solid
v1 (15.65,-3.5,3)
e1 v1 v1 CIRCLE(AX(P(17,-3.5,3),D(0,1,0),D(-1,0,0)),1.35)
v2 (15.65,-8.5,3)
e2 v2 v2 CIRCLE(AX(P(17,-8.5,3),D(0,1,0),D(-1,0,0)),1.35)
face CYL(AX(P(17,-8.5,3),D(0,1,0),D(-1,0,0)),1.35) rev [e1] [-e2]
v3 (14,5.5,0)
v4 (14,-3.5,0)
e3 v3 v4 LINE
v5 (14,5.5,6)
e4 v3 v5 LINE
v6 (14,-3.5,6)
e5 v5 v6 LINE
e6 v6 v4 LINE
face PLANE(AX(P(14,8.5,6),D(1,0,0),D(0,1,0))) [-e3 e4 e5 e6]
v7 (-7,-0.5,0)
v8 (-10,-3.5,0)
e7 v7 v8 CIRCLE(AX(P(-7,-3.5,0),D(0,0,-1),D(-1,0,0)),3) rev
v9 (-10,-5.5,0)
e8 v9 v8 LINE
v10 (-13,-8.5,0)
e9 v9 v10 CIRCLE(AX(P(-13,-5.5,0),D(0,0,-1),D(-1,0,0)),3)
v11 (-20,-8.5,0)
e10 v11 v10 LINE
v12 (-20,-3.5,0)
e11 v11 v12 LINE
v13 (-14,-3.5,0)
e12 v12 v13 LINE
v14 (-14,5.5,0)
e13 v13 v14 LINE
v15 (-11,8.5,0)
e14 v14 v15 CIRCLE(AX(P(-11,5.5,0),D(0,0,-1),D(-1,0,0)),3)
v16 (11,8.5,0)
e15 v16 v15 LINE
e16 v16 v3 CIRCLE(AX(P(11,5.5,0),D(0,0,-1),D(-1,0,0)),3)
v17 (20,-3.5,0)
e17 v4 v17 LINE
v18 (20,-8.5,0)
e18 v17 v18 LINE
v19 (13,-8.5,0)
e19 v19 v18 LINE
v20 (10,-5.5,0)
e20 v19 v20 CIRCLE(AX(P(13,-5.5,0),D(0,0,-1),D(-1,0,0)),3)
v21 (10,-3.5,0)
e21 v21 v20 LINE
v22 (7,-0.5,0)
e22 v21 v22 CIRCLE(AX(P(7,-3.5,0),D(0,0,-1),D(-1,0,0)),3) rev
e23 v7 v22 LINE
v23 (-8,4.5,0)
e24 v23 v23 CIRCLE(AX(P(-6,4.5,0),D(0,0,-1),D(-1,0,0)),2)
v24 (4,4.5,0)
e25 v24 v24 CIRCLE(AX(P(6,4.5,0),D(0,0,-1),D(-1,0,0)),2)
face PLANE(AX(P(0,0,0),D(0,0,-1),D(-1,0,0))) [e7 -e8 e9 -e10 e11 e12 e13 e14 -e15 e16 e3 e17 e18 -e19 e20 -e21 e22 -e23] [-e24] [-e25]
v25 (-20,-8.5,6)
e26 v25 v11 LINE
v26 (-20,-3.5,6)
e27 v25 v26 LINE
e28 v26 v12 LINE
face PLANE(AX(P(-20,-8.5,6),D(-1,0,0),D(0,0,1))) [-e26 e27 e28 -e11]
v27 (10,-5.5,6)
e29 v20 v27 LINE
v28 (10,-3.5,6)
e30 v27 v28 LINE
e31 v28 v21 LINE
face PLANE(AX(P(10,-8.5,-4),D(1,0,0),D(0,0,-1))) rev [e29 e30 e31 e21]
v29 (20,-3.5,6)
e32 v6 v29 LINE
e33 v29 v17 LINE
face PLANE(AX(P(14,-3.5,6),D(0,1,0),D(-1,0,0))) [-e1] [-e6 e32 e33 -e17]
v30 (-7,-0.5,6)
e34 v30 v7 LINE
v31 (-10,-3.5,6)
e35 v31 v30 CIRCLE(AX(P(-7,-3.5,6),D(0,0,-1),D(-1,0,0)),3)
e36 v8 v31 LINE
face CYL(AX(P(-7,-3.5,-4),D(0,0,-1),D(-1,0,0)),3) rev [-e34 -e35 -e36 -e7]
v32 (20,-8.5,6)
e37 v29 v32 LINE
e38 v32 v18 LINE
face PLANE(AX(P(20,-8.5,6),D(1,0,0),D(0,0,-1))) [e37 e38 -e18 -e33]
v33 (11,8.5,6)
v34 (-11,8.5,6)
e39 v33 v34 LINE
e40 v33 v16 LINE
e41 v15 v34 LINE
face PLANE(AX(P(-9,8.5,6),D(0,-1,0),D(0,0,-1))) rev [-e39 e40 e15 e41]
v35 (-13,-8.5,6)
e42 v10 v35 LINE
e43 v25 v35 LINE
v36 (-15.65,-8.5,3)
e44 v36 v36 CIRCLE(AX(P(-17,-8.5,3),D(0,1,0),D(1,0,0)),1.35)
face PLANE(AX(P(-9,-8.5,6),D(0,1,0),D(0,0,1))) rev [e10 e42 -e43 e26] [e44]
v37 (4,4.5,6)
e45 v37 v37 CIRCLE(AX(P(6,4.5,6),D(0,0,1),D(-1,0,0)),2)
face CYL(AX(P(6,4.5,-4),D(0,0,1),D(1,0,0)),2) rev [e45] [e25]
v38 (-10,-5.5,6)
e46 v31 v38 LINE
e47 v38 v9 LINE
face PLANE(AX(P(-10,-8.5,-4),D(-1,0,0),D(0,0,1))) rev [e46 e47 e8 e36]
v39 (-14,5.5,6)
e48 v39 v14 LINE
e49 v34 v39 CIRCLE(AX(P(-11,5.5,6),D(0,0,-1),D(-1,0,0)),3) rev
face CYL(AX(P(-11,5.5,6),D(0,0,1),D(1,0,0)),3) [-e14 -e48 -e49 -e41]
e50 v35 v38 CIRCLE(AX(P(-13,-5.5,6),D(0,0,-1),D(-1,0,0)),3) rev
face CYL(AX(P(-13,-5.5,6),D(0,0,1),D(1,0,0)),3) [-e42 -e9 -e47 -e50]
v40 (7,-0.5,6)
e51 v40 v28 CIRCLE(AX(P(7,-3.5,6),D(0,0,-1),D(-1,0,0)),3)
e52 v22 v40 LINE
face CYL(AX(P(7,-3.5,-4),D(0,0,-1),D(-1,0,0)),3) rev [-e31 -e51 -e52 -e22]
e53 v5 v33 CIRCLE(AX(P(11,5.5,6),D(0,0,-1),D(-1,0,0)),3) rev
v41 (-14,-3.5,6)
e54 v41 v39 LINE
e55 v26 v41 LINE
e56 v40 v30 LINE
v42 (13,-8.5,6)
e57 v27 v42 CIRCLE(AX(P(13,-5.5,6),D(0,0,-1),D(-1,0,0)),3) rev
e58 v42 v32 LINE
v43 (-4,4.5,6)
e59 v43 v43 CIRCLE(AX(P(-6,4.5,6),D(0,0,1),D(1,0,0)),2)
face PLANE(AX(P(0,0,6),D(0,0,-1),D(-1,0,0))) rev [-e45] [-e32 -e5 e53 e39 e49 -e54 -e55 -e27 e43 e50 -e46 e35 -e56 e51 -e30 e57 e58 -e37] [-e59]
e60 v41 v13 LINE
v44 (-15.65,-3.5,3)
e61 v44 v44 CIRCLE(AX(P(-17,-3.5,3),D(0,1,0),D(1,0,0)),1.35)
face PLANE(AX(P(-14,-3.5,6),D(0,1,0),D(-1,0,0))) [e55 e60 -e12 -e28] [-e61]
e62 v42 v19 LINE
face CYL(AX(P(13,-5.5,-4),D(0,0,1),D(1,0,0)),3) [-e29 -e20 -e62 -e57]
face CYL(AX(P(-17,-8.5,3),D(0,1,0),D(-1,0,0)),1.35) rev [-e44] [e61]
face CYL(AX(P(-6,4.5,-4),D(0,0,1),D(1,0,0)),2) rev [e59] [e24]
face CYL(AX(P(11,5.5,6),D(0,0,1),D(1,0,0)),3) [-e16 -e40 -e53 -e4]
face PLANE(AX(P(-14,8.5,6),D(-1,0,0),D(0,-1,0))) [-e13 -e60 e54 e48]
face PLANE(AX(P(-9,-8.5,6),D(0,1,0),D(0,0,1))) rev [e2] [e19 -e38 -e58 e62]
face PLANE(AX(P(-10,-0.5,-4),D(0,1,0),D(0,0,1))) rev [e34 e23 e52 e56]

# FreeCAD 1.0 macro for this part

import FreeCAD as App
import Part
import Sketcher


def edges_at(feature, points):
    """Names of the edges that pass closest to the given points."""
    edges = feature.Shape.Edges
    near = lambda p: min(range(len(edges)), key=lambda i: edges[i].distToShape(Part.Vertex(*p))[0])
    return sorted({f"Edge{near(p) + 1}" for p in points})

doc = App.newDocument("Part")
body = doc.addObject("PartDesign::Body", "Body")

# Sketch on XY plane
sketch1 = body.newObject("Sketcher::SketchObject", "Sketch")
sketch1.AttachmentSupport = (doc.getObject("XY_Plane"), [""])
sketch1.MapMode = "FlatFace"
sketch1.addGeometry([
    Part.LineSegment(App.Vector(-9, 8, 0), App.Vector(-9, -8, 0)),
    Part.LineSegment(App.Vector(-9, -8, 0), App.Vector(9, -8, 0)),
    Part.LineSegment(App.Vector(9, -8, 0), App.Vector(9, 8, 0)),
    Part.LineSegment(App.Vector(9, 8, 0), App.Vector(-9, 8, 0)),
], False)
sketch1.addConstraint([
    Sketcher.Constraint("Coincident", 0, 2, 1, 1),
    Sketcher.Constraint("Coincident", 1, 2, 2, 1),
    Sketcher.Constraint("Coincident", 2, 2, 3, 1),
    Sketcher.Constraint("Coincident", 3, 2, 0, 1),
    Sketcher.Constraint("Vertical", 0),
    Sketcher.Constraint("Horizontal", 1),
    Sketcher.Constraint("Vertical", 2),
    Sketcher.Constraint("Horizontal", 3),
    Sketcher.Constraint("Symmetric", 0, 2, 2, 2, -1, 1),
    Sketcher.Constraint("DistanceX", 1, 1, 1, 2, 18.0),
    Sketcher.Constraint("DistanceY", 0, 2, 0, 1, 17.0),
])
pad1 = body.newObject("PartDesign::Pad", "Pad")
pad1.Profile = sketch1
pad1.Length = 6

# Sketch on XY plane
sketch2 = body.newObject("Sketcher::SketchObject", "Sketch001")
sketch2.AttachmentSupport = (doc.getObject("XY_Plane"), [""])
sketch2.MapMode = "FlatFace"
sketch2.addGeometry([
    Part.LineSegment(App.Vector(9, 8, 0), App.Vector(14, 8, 0)),  # 0
    Part.LineSegment(App.Vector(14, 8, 0), App.Vector(14, -4, 0)),  # 1
    Part.LineSegment(App.Vector(14, -4, 0), App.Vector(20, -4, 0)),  # 2
    Part.LineSegment(App.Vector(20, -4, 0), App.Vector(20, -8, 0)),  # 3
    Part.LineSegment(App.Vector(20, -8, 0), App.Vector(9, -8, 0)),  # 4
    Part.LineSegment(App.Vector(9, -8, 0), App.Vector(9, 8, 0)),  # 5
    Part.LineSegment(App.Vector(-20, -8, 0), App.Vector(-20, -4, 0)),  # 6
    Part.LineSegment(App.Vector(-20, -4, 0), App.Vector(-14, -4, 0)),  # 7
    Part.LineSegment(App.Vector(-14, -4, 0), App.Vector(-14, 8, 0)),  # 8
    Part.LineSegment(App.Vector(-14, 8, 0), App.Vector(-9, 8, 0)),  # 9
    Part.LineSegment(App.Vector(-9, 8, 0), App.Vector(-9, -8, 0)),  # 10
    Part.LineSegment(App.Vector(-9, -8, 0), App.Vector(-20, -8, 0)),  # 11
], False)
sketch2.addConstraint([
    Sketcher.Constraint("Coincident", 0, 2, 1, 1),
    Sketcher.Constraint("Coincident", 1, 2, 2, 1),
    Sketcher.Constraint("Coincident", 2, 2, 3, 1),
    Sketcher.Constraint("Coincident", 3, 2, 4, 1),
    Sketcher.Constraint("Coincident", 4, 2, 5, 1),
    Sketcher.Constraint("Coincident", 5, 2, 0, 1),
    Sketcher.Constraint("Coincident", 6, 2, 7, 1),
    Sketcher.Constraint("Coincident", 7, 2, 8, 1),
    Sketcher.Constraint("Coincident", 8, 2, 9, 1),
    Sketcher.Constraint("Coincident", 9, 2, 10, 1),
    Sketcher.Constraint("Coincident", 10, 2, 11, 1),
    Sketcher.Constraint("Coincident", 11, 2, 6, 1),
    Sketcher.Constraint("Horizontal", 0),
    Sketcher.Constraint("Vertical", 1),
    Sketcher.Constraint("Horizontal", 2),
    Sketcher.Constraint("Vertical", 3),
    Sketcher.Constraint("Horizontal", 4),
    Sketcher.Constraint("Vertical", 5),
    Sketcher.Constraint("Vertical", 6),
    Sketcher.Constraint("Horizontal", 7),
    Sketcher.Constraint("Vertical", 8),
    Sketcher.Constraint("Horizontal", 9),
    Sketcher.Constraint("Vertical", 10),
    Sketcher.Constraint("Horizontal", 11),
    Sketcher.Constraint("Symmetric", 4, 2, 9, 2, -1, 1),
    Sketcher.Constraint("Symmetric", 2, 2, 6, 2, -2),
    Sketcher.Constraint("Symmetric", 0, 2, 8, 2, -2),
    Sketcher.Constraint("Horizontal", 4, 2, 10, 2),
    Sketcher.Constraint("Equal", 9, 3),
    Sketcher.Constraint("DistanceX", 0, 1, 0, 2, 5.0),
    Sketcher.Constraint("DistanceX", 2, 1, 2, 2, 6.0),
    Sketcher.Constraint("DistanceY", 1, 2, 1, 1, 12.0),
    Sketcher.Constraint("DistanceX", -1, 1, 0, 2, 14.0),
])
pad2 = body.newObject("PartDesign::Pad", "Pad001")
pad2.Profile = sketch2
pad2.Length = 6

# Sketch on XZ plane
sketch3 = body.newObject("Sketcher::SketchObject", "Sketch002")
sketch3.AttachmentSupport = (doc.getObject("XZ_Plane"), [""])
sketch3.MapMode = "FlatFace"
sketch3.AttachmentOffset = App.Placement(App.Vector(0, 0, 3.5), App.Rotation())
sketch3.addGeometry([
    Part.Circle(App.Vector(17, 3, 0), App.Vector(0, 0, 1), 1.4),
    Part.Circle(App.Vector(-17, 3, 0), App.Vector(0, 0, 1), 1.4),
], False)
sketch3.addConstraint([
    Sketcher.Constraint("Equal", 0, 1),
    Sketcher.Constraint("Symmetric", 0, 3, 1, 3, -2),
    Sketcher.Constraint("Diameter", 0, 2.7),
    Sketcher.Constraint("DistanceX", -1, 1, 0, 3, 17.0),
    Sketcher.Constraint("DistanceY", -1, 1, 0, 3, 3.0),
])
pocket1 = body.newObject("PartDesign::Pocket", "Pocket")
pocket1.Profile = sketch3
pocket1.Length = 5
pocket1.Reversed = True

# Sketch on XY plane
sketch4 = body.newObject("Sketcher::SketchObject", "Sketch003")
sketch4.AttachmentSupport = (doc.getObject("XY_Plane"), [""])
sketch4.MapMode = "FlatFace"
sketch4.AttachmentOffset = App.Placement(App.Vector(0, 0, 6), App.Rotation())
sketch4.addGeometry([
    Part.Circle(App.Vector(-6, 4.5, 0), App.Vector(0, 0, 1), 2),
    Part.Circle(App.Vector(6, 4.5, 0), App.Vector(0, 0, 1), 2),
], False)
sketch4.addConstraint([
    Sketcher.Constraint("Equal", 0, 1),
    Sketcher.Constraint("Symmetric", 0, 3, 1, 3, -2),
    Sketcher.Constraint("Diameter", 0, 4.0),
    Sketcher.Constraint("DistanceX", 0, 3, -1, 1, 6.0),
    Sketcher.Constraint("DistanceY", -1, 1, 0, 3, 4.5),
])
pocket2 = body.newObject("PartDesign::Pocket", "Pocket001")
pocket2.Profile = sketch4
pocket2.Length = 10

# Sketch on XY plane
sketch5 = body.newObject("Sketcher::SketchObject", "Sketch004")
sketch5.AttachmentSupport = (doc.getObject("XY_Plane"), [""])
sketch5.MapMode = "FlatFace"
sketch5.AttachmentOffset = App.Placement(App.Vector(0, 0, 6), App.Rotation())
sketch5.addGeometry([
    Part.LineSegment(App.Vector(-10, 0, 0), App.Vector(-10, -8, 0)),
    Part.LineSegment(App.Vector(-10, -8, 0), App.Vector(10, -8, 0)),
    Part.LineSegment(App.Vector(10, -8, 0), App.Vector(10, 0, 0)),
    Part.LineSegment(App.Vector(10, 0, 0), App.Vector(-10, 0, 0)),
], False)
sketch5.addConstraint([
    Sketcher.Constraint("Coincident", 0, 2, 1, 1),
    Sketcher.Constraint("Coincident", 1, 2, 2, 1),
    Sketcher.Constraint("Coincident", 2, 2, 3, 1),
    Sketcher.Constraint("Coincident", 3, 2, 0, 1),
    Sketcher.Constraint("Vertical", 0),
    Sketcher.Constraint("Horizontal", 1),
    Sketcher.Constraint("Vertical", 2),
    Sketcher.Constraint("Horizontal", 3),
    Sketcher.Constraint("DistanceX", 1, 1, 1, 2, 20.0),
    Sketcher.Constraint("DistanceY", 0, 2, 0, 1, 8.0),
    Sketcher.Constraint("DistanceX", 0, 2, -1, 1, 10.0),
    Sketcher.Constraint("DistanceY", 0, 2, -1, 1, 8.5),
])
pocket3 = body.newObject("PartDesign::Pocket", "Pocket002")
pocket3.Profile = sketch5
pocket3.Length = 10
doc.recompute()

fillet = body.newObject("PartDesign::Fillet", "Fillet")
fillet.Base = (pocket3, edges_at(pocket3, [
    (14, 8.5, 3),
    (-14, 8.5, 3),
    (-10, -8.5, 3),
    (-10, -0.5, 3),
    (10, -0.5, 3),
    (10, -8.5, 3),
]))
fillet.Radius = 3

doc.recompute()
